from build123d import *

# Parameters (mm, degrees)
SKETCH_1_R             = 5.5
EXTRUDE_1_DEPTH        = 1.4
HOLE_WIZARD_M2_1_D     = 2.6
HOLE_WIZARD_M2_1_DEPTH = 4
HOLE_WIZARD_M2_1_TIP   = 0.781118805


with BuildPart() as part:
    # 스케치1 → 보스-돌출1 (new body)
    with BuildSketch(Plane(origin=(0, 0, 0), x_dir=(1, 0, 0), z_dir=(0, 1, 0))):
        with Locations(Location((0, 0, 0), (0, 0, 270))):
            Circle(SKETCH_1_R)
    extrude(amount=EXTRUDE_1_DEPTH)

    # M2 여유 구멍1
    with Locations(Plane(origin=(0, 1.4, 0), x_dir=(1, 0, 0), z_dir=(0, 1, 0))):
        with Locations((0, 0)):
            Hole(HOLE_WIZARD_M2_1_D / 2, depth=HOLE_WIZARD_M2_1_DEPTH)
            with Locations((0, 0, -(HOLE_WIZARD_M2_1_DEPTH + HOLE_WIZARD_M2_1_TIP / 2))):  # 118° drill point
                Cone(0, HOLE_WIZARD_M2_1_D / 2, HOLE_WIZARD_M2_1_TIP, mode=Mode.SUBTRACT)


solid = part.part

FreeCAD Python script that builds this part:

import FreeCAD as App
import Part
import Sketcher
Q = App.Units.Quantity

doc = App.newDocument("Part")
body = doc.addObject("PartDesign::Body", "Body")

# Sketch on XZ plane
sketch1 = body.newObject("Sketcher::SketchObject", "Sketch")
sketch1.AttachmentSupport = (doc.getObject("XZ_Plane"), [""])
sketch1.MapMode = "FlatFace"
sketch1.addGeometry(Part.Circle(App.Vector(0, 0, 0), App.Vector(0, 0, 1), 5.5), False)
sketch1.addConstraint(Sketcher.Constraint("Coincident", 0, 3, -1, 1))
sketch1.addConstraint(Sketcher.Constraint("Diameter", 0, Q("11 mm")))
pad1 = body.newObject("PartDesign::Pad", "Pad")
pad1.Profile = sketch1
pad1.Length = 1.4
pad1.Reversed = True

# Sketch on XZ plane
sketch2 = body.newObject("Sketcher::SketchObject", "Sketch001")
sketch2.AttachmentSupport = (doc.getObject("XZ_Plane"), [""])
sketch2.MapMode = "FlatFace"
sketch2.AttachmentOffset = App.Placement(App.Vector(0, 0, -1.4), App.Rotation())
sketch2.addGeometry(Part.Circle(App.Vector(0, 0, 0), App.Vector(0, 0, 1), 1.3), False)
sketch2.addConstraint(Sketcher.Constraint("Coincident", 0, 3, -1, 1))
sketch2.addConstraint(Sketcher.Constraint("Diameter", 0, Q("2.6 mm")))
doc.recompute()
hole = body.newObject("PartDesign::Hole", "Hole")
hole.Profile = sketch2
hole.ThreadType = "None"
hole.Diameter = 2.6
hole.DepthType = "Dimension"
hole.Depth = 4
hole.DrillPoint = "Angled"
hole.DrillPointAngle = 118
hole.Reversed = True

doc.recompute()
